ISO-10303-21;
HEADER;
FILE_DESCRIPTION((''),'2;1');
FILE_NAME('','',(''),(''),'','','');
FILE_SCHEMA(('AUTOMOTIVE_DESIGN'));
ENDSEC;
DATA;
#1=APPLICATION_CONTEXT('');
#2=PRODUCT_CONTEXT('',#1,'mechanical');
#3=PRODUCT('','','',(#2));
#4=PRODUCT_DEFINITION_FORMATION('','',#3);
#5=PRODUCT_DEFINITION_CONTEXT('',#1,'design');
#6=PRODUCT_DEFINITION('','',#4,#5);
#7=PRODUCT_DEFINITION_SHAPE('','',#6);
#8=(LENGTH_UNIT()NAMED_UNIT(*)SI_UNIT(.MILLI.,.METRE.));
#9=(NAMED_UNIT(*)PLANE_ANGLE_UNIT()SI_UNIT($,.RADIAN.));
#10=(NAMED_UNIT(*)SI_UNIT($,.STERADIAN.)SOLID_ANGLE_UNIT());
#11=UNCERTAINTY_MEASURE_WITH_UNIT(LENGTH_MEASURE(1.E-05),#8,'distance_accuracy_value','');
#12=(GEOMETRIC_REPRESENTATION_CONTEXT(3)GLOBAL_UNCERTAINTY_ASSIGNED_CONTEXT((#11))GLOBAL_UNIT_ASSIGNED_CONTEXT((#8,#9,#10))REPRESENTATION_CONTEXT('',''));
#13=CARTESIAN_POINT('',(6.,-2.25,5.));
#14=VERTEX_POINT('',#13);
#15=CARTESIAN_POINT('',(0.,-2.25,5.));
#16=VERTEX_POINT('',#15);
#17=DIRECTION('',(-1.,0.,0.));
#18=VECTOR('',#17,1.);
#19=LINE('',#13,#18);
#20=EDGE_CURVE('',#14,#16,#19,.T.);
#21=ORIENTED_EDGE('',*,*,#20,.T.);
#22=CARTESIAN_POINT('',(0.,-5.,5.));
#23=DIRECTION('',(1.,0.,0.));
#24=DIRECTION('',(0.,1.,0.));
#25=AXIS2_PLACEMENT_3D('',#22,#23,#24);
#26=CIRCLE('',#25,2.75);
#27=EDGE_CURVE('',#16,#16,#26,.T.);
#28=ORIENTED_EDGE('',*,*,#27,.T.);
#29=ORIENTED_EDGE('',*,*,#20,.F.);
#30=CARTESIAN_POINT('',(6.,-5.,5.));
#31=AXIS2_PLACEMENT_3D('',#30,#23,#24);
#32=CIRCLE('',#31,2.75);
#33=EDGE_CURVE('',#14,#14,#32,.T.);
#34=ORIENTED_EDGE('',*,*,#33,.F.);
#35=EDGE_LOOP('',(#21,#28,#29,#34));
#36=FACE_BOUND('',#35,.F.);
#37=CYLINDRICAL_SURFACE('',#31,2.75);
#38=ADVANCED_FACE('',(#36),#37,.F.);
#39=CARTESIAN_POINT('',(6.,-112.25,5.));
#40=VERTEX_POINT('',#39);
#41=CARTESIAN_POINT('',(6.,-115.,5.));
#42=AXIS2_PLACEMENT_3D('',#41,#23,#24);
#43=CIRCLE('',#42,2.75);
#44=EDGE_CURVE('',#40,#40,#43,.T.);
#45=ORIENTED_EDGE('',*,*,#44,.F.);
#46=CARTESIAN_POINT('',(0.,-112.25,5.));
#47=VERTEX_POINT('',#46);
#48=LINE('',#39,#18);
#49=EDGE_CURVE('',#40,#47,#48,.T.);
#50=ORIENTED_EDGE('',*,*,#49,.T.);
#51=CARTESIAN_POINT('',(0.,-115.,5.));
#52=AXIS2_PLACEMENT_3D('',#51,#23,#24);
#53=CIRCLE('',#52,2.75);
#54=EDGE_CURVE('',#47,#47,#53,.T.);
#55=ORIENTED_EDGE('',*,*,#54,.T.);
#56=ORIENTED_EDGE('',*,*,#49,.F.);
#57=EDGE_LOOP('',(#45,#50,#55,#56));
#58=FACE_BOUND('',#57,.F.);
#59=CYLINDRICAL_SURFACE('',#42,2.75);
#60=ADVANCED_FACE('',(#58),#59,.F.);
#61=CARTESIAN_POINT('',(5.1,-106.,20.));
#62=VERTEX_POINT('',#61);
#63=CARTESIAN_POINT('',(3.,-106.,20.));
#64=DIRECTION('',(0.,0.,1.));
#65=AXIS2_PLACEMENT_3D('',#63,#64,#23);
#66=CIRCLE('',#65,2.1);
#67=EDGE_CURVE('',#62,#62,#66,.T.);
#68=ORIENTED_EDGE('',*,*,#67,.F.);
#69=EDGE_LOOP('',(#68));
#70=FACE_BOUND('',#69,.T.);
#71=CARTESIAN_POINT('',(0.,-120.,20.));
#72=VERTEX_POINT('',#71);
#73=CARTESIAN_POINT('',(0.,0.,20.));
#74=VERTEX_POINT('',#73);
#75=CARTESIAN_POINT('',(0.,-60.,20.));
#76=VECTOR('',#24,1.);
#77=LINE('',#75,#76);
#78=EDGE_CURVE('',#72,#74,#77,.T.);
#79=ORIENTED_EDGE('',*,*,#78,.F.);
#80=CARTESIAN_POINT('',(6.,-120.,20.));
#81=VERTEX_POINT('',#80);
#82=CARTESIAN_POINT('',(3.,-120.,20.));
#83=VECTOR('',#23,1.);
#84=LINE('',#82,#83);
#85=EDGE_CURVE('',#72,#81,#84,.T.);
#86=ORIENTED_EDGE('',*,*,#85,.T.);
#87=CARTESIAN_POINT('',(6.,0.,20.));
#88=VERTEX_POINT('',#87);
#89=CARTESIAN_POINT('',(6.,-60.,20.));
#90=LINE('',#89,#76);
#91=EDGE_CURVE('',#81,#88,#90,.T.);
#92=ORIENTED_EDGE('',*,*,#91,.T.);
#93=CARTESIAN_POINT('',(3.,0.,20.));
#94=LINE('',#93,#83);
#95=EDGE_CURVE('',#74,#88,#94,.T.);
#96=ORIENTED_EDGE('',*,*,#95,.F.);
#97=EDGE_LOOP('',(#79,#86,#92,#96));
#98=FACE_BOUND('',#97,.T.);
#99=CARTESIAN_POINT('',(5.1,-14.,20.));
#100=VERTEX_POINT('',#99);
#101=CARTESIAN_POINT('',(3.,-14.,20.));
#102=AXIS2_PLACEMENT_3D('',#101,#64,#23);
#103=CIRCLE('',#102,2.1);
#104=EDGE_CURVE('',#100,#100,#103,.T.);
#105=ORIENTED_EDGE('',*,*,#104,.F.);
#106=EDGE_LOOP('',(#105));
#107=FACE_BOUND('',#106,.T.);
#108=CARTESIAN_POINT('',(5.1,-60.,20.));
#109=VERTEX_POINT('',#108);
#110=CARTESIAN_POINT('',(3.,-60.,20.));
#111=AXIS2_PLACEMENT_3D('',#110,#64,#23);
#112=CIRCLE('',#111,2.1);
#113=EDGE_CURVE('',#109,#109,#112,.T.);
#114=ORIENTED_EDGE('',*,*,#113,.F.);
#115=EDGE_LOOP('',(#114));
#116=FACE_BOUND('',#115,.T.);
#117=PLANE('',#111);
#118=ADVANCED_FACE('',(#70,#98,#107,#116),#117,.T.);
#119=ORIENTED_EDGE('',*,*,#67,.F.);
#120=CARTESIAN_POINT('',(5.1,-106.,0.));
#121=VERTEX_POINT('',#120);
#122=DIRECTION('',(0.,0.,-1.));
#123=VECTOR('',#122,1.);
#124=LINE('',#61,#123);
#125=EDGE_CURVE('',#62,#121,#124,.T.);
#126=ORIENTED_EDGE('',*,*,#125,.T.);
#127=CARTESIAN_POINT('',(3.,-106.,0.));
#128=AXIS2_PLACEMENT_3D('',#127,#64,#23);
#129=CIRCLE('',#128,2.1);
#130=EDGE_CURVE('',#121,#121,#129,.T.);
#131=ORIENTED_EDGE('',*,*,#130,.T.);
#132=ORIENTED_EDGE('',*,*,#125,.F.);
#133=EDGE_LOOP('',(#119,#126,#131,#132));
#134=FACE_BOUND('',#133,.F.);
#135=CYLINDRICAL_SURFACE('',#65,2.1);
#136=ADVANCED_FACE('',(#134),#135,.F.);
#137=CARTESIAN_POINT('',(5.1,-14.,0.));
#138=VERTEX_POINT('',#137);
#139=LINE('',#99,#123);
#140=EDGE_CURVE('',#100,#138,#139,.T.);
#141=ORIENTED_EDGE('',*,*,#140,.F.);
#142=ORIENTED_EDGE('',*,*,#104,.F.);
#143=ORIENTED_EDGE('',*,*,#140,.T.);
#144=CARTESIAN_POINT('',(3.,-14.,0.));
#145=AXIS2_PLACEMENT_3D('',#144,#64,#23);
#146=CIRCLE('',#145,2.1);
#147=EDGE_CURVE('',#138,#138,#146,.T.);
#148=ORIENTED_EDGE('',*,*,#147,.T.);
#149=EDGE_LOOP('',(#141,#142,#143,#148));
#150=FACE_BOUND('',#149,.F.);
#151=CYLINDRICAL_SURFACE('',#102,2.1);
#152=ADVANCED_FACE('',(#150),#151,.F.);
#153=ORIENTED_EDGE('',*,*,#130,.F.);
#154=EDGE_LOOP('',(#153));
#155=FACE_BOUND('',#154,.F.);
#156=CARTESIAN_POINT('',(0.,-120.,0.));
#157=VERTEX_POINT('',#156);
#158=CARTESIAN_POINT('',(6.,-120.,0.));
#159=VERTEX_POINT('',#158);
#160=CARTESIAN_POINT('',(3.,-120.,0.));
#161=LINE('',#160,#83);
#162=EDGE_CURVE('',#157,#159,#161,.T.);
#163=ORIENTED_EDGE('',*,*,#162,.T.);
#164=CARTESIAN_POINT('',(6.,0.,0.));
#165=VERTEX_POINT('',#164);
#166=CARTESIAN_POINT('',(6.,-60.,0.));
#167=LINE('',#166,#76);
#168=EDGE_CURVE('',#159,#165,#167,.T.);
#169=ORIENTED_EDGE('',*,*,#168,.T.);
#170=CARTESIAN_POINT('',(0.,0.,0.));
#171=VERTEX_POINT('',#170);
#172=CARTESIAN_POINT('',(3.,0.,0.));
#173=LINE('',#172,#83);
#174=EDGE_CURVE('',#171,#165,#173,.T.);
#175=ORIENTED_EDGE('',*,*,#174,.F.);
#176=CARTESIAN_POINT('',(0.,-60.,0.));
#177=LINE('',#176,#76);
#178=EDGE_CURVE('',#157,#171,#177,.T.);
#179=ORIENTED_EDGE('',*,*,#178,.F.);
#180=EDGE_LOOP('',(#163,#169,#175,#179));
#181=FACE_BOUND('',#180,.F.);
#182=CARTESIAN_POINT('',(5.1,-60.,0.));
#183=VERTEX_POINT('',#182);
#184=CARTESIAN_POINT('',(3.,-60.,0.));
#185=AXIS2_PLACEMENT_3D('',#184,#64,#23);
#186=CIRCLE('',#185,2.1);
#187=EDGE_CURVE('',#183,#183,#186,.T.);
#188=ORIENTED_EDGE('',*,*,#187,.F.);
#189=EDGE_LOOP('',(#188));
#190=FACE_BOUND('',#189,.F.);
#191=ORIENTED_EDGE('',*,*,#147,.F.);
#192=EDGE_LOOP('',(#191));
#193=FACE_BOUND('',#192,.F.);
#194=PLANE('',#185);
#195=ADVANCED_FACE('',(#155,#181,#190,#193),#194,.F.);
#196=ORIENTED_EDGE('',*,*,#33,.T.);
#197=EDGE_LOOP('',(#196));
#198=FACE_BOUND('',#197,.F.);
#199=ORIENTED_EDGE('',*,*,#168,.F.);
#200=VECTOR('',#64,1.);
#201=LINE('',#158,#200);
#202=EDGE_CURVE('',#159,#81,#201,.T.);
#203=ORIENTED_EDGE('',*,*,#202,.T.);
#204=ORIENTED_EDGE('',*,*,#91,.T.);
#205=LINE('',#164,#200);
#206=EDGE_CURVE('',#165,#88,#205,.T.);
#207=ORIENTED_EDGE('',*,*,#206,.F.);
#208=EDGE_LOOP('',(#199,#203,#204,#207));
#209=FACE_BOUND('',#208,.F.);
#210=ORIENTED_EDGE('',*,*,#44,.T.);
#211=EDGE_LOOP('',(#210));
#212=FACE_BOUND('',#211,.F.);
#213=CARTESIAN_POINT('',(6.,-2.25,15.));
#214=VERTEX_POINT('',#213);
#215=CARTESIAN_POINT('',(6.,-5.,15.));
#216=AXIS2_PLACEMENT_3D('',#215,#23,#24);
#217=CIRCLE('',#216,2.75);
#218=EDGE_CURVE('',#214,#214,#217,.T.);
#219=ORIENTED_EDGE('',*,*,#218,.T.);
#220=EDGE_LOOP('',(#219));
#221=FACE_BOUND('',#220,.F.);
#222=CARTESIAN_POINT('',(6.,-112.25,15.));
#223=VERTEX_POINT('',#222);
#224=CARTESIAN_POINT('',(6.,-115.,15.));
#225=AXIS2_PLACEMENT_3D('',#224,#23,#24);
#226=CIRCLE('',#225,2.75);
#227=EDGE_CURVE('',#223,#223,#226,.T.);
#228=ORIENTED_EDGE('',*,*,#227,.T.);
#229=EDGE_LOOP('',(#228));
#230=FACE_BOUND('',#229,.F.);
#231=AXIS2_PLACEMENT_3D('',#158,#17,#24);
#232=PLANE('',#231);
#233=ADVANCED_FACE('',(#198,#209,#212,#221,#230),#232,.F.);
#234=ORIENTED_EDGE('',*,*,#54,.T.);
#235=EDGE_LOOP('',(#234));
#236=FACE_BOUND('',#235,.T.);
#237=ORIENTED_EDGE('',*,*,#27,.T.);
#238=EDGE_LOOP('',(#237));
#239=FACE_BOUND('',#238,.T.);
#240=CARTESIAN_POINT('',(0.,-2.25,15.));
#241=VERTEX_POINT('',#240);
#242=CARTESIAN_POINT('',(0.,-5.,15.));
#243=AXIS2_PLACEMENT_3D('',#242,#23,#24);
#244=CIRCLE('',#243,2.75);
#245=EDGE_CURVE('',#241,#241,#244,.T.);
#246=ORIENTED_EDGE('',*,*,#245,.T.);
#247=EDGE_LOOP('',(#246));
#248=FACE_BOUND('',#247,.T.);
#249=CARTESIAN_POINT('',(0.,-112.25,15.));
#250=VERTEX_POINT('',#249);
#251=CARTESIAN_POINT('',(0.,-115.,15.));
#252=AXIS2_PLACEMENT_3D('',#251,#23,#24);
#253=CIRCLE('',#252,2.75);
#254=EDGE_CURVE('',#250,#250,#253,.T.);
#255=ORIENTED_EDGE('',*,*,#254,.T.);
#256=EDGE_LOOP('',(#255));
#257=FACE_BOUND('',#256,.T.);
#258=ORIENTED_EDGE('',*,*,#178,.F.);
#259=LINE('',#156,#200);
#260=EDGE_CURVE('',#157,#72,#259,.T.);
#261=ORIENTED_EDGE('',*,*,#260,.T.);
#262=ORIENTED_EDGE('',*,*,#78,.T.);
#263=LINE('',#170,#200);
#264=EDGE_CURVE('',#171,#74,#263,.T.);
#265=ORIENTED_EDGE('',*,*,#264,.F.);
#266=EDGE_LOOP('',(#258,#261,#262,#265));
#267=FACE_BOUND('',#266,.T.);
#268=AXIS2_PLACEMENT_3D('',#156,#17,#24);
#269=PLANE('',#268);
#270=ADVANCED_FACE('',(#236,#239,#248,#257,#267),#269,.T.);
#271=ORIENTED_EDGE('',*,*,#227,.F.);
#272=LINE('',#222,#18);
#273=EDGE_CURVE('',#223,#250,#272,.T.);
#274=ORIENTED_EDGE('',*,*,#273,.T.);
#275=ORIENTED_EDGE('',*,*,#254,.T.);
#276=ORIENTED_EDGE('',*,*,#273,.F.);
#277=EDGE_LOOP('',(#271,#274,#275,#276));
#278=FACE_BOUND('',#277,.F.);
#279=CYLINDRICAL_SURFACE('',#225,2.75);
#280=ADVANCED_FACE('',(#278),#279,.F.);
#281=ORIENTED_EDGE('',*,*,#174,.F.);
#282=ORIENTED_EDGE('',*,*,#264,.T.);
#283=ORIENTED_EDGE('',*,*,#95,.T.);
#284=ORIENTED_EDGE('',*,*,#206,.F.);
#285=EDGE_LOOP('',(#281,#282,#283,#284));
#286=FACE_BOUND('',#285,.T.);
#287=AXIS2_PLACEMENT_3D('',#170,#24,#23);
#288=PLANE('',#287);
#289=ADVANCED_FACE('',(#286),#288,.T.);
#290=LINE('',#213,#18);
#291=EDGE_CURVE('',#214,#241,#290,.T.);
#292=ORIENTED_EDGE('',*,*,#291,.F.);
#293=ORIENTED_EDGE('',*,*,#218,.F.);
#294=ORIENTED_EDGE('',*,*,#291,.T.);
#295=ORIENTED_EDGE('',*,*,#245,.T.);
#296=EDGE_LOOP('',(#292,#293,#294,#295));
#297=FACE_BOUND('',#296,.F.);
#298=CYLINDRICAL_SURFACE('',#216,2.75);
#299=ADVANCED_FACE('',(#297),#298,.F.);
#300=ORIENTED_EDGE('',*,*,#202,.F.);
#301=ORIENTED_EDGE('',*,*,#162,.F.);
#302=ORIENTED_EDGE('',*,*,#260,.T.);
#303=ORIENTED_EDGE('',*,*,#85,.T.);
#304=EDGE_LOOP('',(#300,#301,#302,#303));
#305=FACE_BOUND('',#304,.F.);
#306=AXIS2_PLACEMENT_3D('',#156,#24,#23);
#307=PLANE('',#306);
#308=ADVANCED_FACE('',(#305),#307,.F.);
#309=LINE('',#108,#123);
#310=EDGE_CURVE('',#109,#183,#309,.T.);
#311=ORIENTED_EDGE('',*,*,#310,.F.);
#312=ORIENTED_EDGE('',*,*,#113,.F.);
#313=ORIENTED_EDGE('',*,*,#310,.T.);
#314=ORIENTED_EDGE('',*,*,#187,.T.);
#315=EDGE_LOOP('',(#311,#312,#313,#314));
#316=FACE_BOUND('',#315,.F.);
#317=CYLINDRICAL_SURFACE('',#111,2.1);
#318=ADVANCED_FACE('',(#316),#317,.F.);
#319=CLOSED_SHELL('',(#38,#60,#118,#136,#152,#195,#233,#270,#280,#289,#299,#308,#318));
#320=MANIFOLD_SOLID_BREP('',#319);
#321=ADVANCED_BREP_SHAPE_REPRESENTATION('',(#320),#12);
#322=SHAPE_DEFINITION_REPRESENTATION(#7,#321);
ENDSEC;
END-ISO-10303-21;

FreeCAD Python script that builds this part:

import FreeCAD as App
import Part
import Sketcher
Q = App.Units.Quantity


def add_polygon(sketch, points):
    """Adds a closed chain of lines whose ends are joined by coincident constraints."""
    first, n = sketch.GeometryCount, len(points)
    for a, b in zip(points, points[1:] + points[:1]):
        sketch.addGeometry(Part.LineSegment(App.Vector(*a, 0), App.Vector(*b, 0)), False)
    for i in range(n):
        sketch.addConstraint(Sketcher.Constraint("Coincident", first + i, 2, first + (i + 1) % n, 1))

doc = App.newDocument("Part")
body = doc.addObject("PartDesign::Body", "Body")

sketch1 = body.newObject("Sketcher::SketchObject", "Sketch")
sketch1.AttachmentSupport = (doc.getObject("XY_Plane"), [""])
sketch1.MapMode = "FlatFace"
add_polygon(sketch1, [(0, 0), (0, -120), (6, -120), (6, 0)])
sketch1.addConstraint([
    Sketcher.Constraint("Vertical", 0),
    Sketcher.Constraint("Horizontal", 1),
    Sketcher.Constraint("Vertical", 2),
    Sketcher.Constraint("Horizontal", 3),
    Sketcher.Constraint("Coincident", 3, 2, -1, 1),
    Sketcher.Constraint("DistanceX", 1, 1, 1, 2, Q("6 mm")),
    Sketcher.Constraint("DistanceY", 0, 2, 0, 1, Q("120 mm")),
])
pad1 = body.newObject("PartDesign::Pad", "Pad")
pad1.Profile = sketch1
pad1.Length = 20

sketch2 = body.newObject("Sketcher::SketchObject", "Sketch001")
sketch2.AttachmentSupport = (doc.getObject("XY_Plane"), [""])
sketch2.MapMode = "FlatFace"
sketch2.AttachmentOffset = App.Placement(App.Vector(0, 0, 20), App.Rotation())
sketch2.addGeometry([
    Part.Circle(App.Vector(3, -14, 0), App.Vector(0, 0, 1), 2.1),
    Part.Circle(App.Vector(3, -106, 0), App.Vector(0, 0, 1), 2.1),
    Part.Circle(App.Vector(3, -60, 0), App.Vector(0, 0, 1), 2.1),
], False)
sketch2.addConstraint([
    Sketcher.Constraint("Equal", 0, 1),
    Sketcher.Constraint("Equal", 1, 2),
    Sketcher.Constraint("Vertical", 0, 3, 1, 3),
    Sketcher.Constraint("Vertical", 1, 3, 2, 3),
    Sketcher.Constraint("Diameter", 0, Q("4.2 mm")),
    Sketcher.Constraint("DistanceX", -1, 1, 0, 3, Q("3 mm")),
    Sketcher.Constraint("DistanceY", 0, 3, -1, 1, Q("14 mm")),
    Sketcher.Constraint("DistanceY", 1, 3, -1, 1, Q("106 mm")),
    Sketcher.Constraint("DistanceY", 2, 3, -1, 1, Q("60 mm")),
])
pocket1 = body.newObject("PartDesign::Pocket", "Pocket")
pocket1.Profile = sketch2
pocket1.Length = 20

sketch3 = body.newObject("Sketcher::SketchObject", "Sketch002")
sketch3.AttachmentSupport = (doc.getObject("YZ_Plane"), [""])
sketch3.MapMode = "FlatFace"
sketch3.AttachmentOffset = App.Placement(App.Vector(0, 0, 6), App.Rotation())
sketch3.addGeometry([
    Part.Circle(App.Vector(-115, 15, 0), App.Vector(0, 0, 1), 2.75),
    Part.Circle(App.Vector(-115, 5, 0), App.Vector(0, 0, 1), 2.75),
    Part.Circle(App.Vector(-5, 5, 0), App.Vector(0, 0, 1), 2.75),
    Part.Circle(App.Vector(-5, 15, 0), App.Vector(0, 0, 1), 2.75),
], False)
sketch3.addConstraint([
    Sketcher.Constraint("Equal", 0, 1),
    Sketcher.Constraint("Equal", 1, 2),
    Sketcher.Constraint("Equal", 2, 3),
    Sketcher.Constraint("Horizontal", 1, 3, 2, 3),
    Sketcher.Constraint("Horizontal", 0, 3, 3, 3),
    Sketcher.Constraint("Vertical", 0, 3, 1, 3),
    Sketcher.Constraint("Vertical", 2, 3, 3, 3),
    Sketcher.Constraint("Diameter", 0, Q("5.5 mm")),
    Sketcher.Constraint("DistanceX", 0, 3, -1, 1, Q("115 mm")),
    Sketcher.Constraint("DistanceY", -1, 1, 0, 3, Q("15 mm")),
    Sketcher.Constraint("DistanceY", -1, 1, 1, 3, Q("5 mm")),
    Sketcher.Constraint("DistanceX", 2, 3, -1, 1, Q("5 mm")),
])
pocket2 = body.newObject("PartDesign::Pocket", "Pocket001")
pocket2.Profile = sketch3
pocket2.Length = 25

doc.recompute()
